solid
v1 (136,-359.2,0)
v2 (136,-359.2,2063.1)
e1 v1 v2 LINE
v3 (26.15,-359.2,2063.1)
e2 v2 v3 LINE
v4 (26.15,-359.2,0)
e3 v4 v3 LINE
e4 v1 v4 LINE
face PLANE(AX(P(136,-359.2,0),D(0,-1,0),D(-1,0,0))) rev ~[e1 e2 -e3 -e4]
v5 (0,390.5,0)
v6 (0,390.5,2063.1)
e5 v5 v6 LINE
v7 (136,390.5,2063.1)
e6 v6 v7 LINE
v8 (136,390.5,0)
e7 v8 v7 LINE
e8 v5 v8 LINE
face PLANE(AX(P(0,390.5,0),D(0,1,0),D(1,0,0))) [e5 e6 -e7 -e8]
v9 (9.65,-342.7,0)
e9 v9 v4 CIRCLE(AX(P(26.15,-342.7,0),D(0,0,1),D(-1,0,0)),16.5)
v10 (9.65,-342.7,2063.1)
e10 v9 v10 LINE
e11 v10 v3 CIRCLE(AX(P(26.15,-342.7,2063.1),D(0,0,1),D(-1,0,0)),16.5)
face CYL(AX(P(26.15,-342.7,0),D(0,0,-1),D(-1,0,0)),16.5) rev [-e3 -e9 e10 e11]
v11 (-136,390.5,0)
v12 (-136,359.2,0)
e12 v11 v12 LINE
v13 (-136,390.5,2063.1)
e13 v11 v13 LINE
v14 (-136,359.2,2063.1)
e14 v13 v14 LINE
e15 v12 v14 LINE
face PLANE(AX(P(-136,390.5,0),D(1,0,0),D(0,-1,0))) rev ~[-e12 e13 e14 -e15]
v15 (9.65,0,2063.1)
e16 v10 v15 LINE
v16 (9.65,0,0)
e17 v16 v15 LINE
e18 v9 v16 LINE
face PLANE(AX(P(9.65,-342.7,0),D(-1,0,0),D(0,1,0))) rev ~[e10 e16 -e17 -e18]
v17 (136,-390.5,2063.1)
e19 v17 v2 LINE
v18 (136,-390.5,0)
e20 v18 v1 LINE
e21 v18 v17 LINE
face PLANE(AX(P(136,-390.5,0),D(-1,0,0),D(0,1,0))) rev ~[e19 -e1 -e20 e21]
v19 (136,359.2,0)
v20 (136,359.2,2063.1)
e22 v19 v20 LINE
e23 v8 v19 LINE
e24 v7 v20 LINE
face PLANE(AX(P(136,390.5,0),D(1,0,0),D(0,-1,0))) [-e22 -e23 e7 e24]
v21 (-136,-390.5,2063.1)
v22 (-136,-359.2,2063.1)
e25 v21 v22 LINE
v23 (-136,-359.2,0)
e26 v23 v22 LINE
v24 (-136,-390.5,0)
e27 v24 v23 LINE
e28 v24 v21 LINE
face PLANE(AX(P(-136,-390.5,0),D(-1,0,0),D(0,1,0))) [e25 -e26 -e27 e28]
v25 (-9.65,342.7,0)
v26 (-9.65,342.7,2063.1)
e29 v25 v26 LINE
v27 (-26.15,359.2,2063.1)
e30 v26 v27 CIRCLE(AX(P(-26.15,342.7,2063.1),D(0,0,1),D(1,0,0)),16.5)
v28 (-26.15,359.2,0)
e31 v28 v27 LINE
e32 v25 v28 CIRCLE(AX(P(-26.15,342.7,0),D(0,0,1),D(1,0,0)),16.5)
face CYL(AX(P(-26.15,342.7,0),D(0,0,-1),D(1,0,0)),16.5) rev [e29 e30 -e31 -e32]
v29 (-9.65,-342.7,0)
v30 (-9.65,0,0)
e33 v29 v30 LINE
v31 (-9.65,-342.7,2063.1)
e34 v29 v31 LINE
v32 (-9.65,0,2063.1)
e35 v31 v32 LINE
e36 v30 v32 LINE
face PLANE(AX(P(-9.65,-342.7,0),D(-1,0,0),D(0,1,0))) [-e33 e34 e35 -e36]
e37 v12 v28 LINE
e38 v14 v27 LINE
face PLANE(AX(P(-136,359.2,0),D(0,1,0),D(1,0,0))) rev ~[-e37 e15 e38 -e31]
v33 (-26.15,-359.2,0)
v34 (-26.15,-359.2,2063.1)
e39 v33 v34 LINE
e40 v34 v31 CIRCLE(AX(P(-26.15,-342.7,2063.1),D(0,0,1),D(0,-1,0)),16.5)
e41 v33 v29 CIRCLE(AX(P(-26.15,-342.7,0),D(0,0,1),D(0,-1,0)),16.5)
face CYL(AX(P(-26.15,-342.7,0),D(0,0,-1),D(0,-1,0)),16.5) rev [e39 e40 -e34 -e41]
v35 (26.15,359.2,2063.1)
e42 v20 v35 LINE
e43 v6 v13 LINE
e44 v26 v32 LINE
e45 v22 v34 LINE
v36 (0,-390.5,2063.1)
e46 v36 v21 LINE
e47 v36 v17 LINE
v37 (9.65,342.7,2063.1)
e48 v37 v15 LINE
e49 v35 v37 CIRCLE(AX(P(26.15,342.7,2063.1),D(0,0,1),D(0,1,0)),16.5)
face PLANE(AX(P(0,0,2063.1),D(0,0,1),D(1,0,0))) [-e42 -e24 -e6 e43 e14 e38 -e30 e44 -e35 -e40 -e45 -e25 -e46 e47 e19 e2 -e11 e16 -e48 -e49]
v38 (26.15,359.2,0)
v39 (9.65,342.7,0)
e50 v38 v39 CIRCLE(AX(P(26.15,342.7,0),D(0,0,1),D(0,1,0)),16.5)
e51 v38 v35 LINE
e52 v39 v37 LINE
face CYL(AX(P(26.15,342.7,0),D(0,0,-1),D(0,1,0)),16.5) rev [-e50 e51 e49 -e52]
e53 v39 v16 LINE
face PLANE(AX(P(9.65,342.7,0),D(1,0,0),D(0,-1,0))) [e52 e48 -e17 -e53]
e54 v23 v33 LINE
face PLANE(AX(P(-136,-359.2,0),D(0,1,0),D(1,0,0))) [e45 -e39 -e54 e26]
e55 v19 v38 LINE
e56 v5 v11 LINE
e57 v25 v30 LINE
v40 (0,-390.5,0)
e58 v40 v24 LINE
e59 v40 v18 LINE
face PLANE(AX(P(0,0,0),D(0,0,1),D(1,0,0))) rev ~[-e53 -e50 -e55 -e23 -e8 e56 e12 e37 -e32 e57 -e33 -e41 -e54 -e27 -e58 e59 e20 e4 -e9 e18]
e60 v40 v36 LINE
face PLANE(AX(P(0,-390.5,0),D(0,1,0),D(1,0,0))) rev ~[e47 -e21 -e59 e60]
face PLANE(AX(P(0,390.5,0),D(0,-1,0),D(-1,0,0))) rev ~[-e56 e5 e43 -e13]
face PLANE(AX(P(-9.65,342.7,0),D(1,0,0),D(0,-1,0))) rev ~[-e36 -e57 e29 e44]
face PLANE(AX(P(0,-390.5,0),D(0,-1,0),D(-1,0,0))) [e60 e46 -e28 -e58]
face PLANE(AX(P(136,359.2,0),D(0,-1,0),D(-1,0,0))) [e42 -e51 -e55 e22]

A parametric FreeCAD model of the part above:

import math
import FreeCAD as App
import Part
import Sketcher
from FreeCAD import Vector
Q = App.Units.Quantity

doc = App.newDocument("Part")
body = doc.addObject("PartDesign::Body", "Body")

# Sketch on XY plane
sketch1 = doc.addObject("Sketcher::SketchObject", "Sketch")
body.addObject(sketch1)
sketch1.AttachmentSupport = (doc.XY_Plane, [""])
sketch1.MapMode = "FlatFace"
sketch1.addGeometry(Part.LineSegment(Vector(-136, -359, 0), Vector(-136, -390, 0)), False)
sketch1.addGeometry(Part.LineSegment(Vector(-136, -390, 0), Vector(136, -390, 0)), False)
sketch1.addGeometry(Part.LineSegment(Vector(136, -390, 0), Vector(136, -359, 0)), False)
sketch1.addGeometry(Part.LineSegment(Vector(136, -359, 0), Vector(26, -359, 0)), False)
sketch1.addGeometry(Part.ArcOfCircle(Part.Circle(Vector(26, -343, 0), Vector(0, 0, 1), 16), math.radians(180), math.radians(270)), False)
sketch1.addGeometry(Part.LineSegment(Vector(10, -343, 0), Vector(10, 343, 0)), False)
sketch1.addGeometry(Part.ArcOfCircle(Part.Circle(Vector(26, 343, 0), Vector(0, 0, 1), 16), math.radians(90), math.radians(180)), False)
sketch1.addGeometry(Part.LineSegment(Vector(26, 359, 0), Vector(136, 359, 0)), False)
sketch1.addGeometry(Part.LineSegment(Vector(136, 359, 0), Vector(136, 390, 0)), False)
sketch1.addGeometry(Part.LineSegment(Vector(136, 390, 0), Vector(-136, 390, 0)), False)
sketch1.addGeometry(Part.LineSegment(Vector(-136, 390, 0), Vector(-136, 359, 0)), False)
sketch1.addGeometry(Part.LineSegment(Vector(-136, 359, 0), Vector(-26, 359, 0)), False)
sketch1.addGeometry(Part.ArcOfCircle(Part.Circle(Vector(-26, 343, 0), Vector(0, 0, 1), 16), math.radians(0), math.radians(90)), False)
sketch1.addGeometry(Part.LineSegment(Vector(-10, 343, 0), Vector(-10, -343, 0)), False)
sketch1.addGeometry(Part.ArcOfCircle(Part.Circle(Vector(-26, -343, 0), Vector(0, 0, 1), 16), math.radians(-90), math.radians(0)), False)
sketch1.addGeometry(Part.LineSegment(Vector(-26, -359, 0), Vector(-136, -359, 0)), False)
sketch1.addConstraint(Sketcher.Constraint("Coincident", 0, 2, 1, 1))
sketch1.addConstraint(Sketcher.Constraint("Coincident", 1, 2, 2, 1))
sketch1.addConstraint(Sketcher.Constraint("Coincident", 2, 2, 3, 1))
sketch1.addConstraint(Sketcher.Constraint("Tangent", 3, 2, 4, 2))
sketch1.addConstraint(Sketcher.Constraint("Tangent", 4, 1, 5, 1))
sketch1.addConstraint(Sketcher.Constraint("Tangent", 5, 2, 6, 2))
sketch1.addConstraint(Sketcher.Constraint("Tangent", 6, 1, 7, 1))
sketch1.addConstraint(Sketcher.Constraint("Coincident", 7, 2, 8, 1))
sketch1.addConstraint(Sketcher.Constraint("Coincident", 8, 2, 9, 1))
sketch1.addConstraint(Sketcher.Constraint("Coincident", 9, 2, 10, 1))
sketch1.addConstraint(Sketcher.Constraint("Coincident", 10, 2, 11, 1))
sketch1.addConstraint(Sketcher.Constraint("Tangent", 11, 2, 12, 2))
sketch1.addConstraint(Sketcher.Constraint("Tangent", 12, 1, 13, 1))
sketch1.addConstraint(Sketcher.Constraint("Tangent", 13, 2, 14, 2))
sketch1.addConstraint(Sketcher.Constraint("Tangent", 14, 1, 15, 1))
sketch1.addConstraint(Sketcher.Constraint("Coincident", 15, 2, 0, 1))
sketch1.addConstraint(Sketcher.Constraint("Vertical", 0))
sketch1.addConstraint(Sketcher.Constraint("Horizontal", 1))
sketch1.addConstraint(Sketcher.Constraint("Vertical", 2))
sketch1.addConstraint(Sketcher.Constraint("Horizontal", 3))
sketch1.addConstraint(Sketcher.Constraint("Vertical", 5))
sketch1.addConstraint(Sketcher.Constraint("Horizontal", 7))
sketch1.addConstraint(Sketcher.Constraint("Vertical", 8))
sketch1.addConstraint(Sketcher.Constraint("Horizontal", 9))
sketch1.addConstraint(Sketcher.Constraint("Vertical", 10))
sketch1.addConstraint(Sketcher.Constraint("Horizontal", 11))
sketch1.addConstraint(Sketcher.Constraint("Vertical", 13))
sketch1.addConstraint(Sketcher.Constraint("Horizontal", 15))
sketch1.addConstraint(Sketcher.Constraint("Equal", 4, 6))
sketch1.addConstraint(Sketcher.Constraint("Equal", 6, 12))
sketch1.addConstraint(Sketcher.Constraint("Equal", 12, 14))
sketch1.addConstraint(Sketcher.Constraint("Symmetric", 4, 3, 12, 3, -1, 1))
sketch1.addConstraint(Sketcher.Constraint("Symmetric", 0, 2, 8, 2, -1, 1))
sketch1.addConstraint(Sketcher.Constraint("Symmetric", 7, 2, 10, 2, -2))
sketch1.addConstraint(Sketcher.Constraint("Symmetric", 2, 2, 15, 2, -2))
sketch1.addConstraint(Sketcher.Constraint("Radius", 4, Q("16.5 mm")))
sketch1.addConstraint(Sketcher.Constraint("DistanceY", 0, 2, 0, 1, Q("31.3 mm")))
sketch1.addConstraint(Sketcher.Constraint("DistanceX", 0, 2, -1, 1, Q("136 mm")))
sketch1.addConstraint(Sketcher.Constraint("DistanceY", 0, 2, -1, 1, Q("390.5 mm")))
sketch1.addConstraint(Sketcher.Constraint("DistanceX", -1, 1, 4, 1, Q("9.65 mm")))
pad1 = doc.addObject("PartDesign::Pad", "Pad")
body.addObject(pad1)
pad1.Profile = sketch1
pad1.Length = 2063.1

doc.recompute()
